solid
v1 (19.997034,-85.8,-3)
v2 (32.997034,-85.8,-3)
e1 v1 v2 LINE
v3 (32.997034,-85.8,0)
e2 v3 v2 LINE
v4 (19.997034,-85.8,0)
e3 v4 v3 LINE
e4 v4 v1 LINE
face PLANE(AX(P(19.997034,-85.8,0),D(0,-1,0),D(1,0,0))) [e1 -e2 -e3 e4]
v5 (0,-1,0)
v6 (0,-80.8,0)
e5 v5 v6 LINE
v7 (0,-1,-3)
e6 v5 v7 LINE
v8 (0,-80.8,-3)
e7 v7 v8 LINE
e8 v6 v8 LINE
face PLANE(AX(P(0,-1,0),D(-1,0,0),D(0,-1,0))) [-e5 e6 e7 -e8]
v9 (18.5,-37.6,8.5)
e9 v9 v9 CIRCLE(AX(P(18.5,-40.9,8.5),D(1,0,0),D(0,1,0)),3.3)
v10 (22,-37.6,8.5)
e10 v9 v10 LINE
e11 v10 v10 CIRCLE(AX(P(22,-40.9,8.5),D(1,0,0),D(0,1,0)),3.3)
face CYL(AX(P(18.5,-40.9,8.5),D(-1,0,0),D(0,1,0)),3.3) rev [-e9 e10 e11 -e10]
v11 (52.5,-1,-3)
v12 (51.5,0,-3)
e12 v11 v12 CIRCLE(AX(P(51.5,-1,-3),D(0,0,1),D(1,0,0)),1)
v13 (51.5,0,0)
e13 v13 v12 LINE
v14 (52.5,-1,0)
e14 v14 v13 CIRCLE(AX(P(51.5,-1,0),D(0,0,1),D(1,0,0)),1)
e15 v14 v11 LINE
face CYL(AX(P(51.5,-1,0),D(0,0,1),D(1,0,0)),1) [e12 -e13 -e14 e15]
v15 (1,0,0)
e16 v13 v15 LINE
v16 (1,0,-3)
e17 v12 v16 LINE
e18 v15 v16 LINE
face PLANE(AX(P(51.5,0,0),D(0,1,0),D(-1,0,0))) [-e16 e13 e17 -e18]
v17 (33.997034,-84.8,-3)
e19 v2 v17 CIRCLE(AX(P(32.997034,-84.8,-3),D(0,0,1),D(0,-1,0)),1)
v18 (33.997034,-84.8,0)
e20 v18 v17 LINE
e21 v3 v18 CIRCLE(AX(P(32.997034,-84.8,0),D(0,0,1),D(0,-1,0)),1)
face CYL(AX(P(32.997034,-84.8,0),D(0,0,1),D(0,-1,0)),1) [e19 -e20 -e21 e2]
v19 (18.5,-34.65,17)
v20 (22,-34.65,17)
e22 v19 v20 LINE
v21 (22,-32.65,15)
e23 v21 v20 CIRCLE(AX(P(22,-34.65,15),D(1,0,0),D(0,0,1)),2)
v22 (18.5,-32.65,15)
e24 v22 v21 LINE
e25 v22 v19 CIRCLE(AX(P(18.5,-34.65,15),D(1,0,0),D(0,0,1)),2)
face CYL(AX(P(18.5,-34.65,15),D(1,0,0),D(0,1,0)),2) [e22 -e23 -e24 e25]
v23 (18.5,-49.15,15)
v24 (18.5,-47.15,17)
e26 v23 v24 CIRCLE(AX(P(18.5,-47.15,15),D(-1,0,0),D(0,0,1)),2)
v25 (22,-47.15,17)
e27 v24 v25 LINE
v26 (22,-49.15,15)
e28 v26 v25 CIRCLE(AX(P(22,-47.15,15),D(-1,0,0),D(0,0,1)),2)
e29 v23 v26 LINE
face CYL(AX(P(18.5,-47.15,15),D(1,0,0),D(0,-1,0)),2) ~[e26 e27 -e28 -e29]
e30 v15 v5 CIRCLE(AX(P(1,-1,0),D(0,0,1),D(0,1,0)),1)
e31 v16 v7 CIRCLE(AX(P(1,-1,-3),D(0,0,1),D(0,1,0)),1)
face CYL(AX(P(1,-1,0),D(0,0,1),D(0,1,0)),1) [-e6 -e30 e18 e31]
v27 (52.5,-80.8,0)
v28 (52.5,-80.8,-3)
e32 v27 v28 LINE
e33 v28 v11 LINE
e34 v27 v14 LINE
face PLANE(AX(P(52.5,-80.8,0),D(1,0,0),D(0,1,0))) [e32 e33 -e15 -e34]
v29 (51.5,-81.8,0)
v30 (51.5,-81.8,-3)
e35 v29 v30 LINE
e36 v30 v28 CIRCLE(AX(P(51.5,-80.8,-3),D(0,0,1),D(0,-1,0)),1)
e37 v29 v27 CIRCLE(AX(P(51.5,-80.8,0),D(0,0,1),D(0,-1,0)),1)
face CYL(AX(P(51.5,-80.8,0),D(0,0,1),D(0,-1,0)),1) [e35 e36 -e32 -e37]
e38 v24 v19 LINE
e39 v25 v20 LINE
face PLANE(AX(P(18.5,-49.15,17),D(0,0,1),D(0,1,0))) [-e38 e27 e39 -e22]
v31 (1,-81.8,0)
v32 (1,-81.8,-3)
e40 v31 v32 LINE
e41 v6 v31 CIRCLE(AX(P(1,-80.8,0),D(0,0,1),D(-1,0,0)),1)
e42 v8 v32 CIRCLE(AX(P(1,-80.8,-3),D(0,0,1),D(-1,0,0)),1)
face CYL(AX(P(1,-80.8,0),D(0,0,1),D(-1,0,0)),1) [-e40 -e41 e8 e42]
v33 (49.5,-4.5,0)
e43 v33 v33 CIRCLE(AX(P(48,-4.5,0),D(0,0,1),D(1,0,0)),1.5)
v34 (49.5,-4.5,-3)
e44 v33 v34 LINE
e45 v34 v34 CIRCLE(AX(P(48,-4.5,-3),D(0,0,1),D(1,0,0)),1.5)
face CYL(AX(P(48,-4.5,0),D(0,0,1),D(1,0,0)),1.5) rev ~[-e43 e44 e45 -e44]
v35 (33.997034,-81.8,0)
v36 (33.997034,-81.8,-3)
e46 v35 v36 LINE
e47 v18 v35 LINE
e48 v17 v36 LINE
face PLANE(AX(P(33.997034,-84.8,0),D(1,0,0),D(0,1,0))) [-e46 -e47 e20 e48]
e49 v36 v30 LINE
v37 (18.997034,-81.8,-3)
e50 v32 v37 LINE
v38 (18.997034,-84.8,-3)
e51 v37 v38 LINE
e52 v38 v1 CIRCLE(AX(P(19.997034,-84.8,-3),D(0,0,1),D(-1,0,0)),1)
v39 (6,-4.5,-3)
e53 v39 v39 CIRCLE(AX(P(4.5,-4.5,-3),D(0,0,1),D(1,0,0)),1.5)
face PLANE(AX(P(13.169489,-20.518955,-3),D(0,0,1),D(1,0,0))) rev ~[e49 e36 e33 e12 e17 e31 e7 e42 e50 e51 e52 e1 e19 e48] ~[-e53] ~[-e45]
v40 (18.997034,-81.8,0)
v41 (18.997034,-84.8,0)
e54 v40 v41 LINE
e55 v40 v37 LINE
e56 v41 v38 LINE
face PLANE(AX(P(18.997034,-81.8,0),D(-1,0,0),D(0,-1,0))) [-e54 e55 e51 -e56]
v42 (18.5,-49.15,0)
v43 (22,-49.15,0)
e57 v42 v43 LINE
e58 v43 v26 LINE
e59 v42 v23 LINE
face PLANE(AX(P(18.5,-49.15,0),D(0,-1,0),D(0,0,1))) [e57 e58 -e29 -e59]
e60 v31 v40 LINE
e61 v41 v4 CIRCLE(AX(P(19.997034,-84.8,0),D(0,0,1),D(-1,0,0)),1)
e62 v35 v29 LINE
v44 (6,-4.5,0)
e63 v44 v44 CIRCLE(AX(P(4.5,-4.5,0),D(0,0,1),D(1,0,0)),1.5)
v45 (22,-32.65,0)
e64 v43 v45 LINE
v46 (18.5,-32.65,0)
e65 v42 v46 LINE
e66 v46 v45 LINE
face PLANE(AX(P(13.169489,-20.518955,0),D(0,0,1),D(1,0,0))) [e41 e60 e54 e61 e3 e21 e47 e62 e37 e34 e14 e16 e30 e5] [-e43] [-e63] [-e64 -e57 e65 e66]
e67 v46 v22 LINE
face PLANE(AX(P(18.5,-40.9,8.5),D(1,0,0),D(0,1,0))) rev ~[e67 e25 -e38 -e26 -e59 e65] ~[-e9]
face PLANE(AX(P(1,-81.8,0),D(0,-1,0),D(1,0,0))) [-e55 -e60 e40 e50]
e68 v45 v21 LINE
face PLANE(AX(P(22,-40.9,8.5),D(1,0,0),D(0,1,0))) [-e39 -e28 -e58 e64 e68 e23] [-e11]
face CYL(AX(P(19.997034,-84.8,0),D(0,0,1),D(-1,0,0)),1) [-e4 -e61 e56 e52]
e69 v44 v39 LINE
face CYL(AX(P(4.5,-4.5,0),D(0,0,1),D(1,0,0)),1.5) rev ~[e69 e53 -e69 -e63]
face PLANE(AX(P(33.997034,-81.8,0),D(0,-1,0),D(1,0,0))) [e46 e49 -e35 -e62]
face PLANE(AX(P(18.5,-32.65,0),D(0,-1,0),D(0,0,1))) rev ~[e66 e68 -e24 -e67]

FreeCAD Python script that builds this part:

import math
import FreeCAD as App
import Part
import Sketcher
Q = App.Units.Quantity


def edges_at(feature, points):
    """Names of the edges that pass closest to the given points."""
    edges = feature.Shape.Edges
    near = lambda p: min(range(len(edges)), key=lambda i: edges[i].distToShape(Part.Vertex(*p))[0])
    return sorted({f"Edge{near(p) + 1}" for p in points})


def add_polygon(sketch, points):
    """Adds a closed chain of lines whose ends are joined by coincident constraints."""
    first, n = sketch.GeometryCount, len(points)
    for a, b in zip(points, points[1:] + points[:1]):
        sketch.addGeometry(Part.LineSegment(App.Vector(*a, 0), App.Vector(*b, 0)), False)
    for i in range(n):
        sketch.addConstraint(Sketcher.Constraint("Coincident", first + i, 2, first + (i + 1) % n, 1))

doc = App.newDocument("Part")
body = doc.addObject("PartDesign::Body", "Body")

# Sketch on XY plane
sketch1 = body.newObject("Sketcher::SketchObject", "Sketch")
sketch1.AttachmentSupport = (doc.getObject("XY_Plane"), [""])
sketch1.MapMode = "FlatFace"
sketch1.addGeometry(Part.ArcOfCircle(Part.Circle(App.Vector(1, -1, 0), App.Vector(0, 0, 1), 1), math.radians(90), math.radians(180)), False)
sketch1.addGeometry(Part.LineSegment(App.Vector(0, -1, 0), App.Vector(0, -80.8, 0)), False)
sketch1.addGeometry(Part.ArcOfCircle(Part.Circle(App.Vector(1, -80.8, 0), App.Vector(0, 0, 1), 1), math.radians(180), math.radians(270)), False)
sketch1.addGeometry(Part.LineSegment(App.Vector(1, -81.8, 0), App.Vector(19, -81.8, 0)), False)
sketch1.addGeometry(Part.LineSegment(App.Vector(19, -81.8, 0), App.Vector(19, -84.8, 0)), False)
sketch1.addGeometry(Part.ArcOfCircle(Part.Circle(App.Vector(20, -84.8, 0), App.Vector(0, 0, 1), 1), math.radians(180), math.radians(270)), False)
sketch1.addGeometry(Part.LineSegment(App.Vector(20, -85.8, 0), App.Vector(33, -85.8, 0)), False)
sketch1.addGeometry(Part.ArcOfCircle(Part.Circle(App.Vector(33, -84.8, 0), App.Vector(0, 0, 1), 1), math.radians(-90), math.radians(0)), False)
sketch1.addGeometry(Part.LineSegment(App.Vector(34, -84.8, 0), App.Vector(34, -81.8, 0)), False)
sketch1.addGeometry(Part.LineSegment(App.Vector(34, -81.8, 0), App.Vector(51.5, -81.8, 0)), False)
sketch1.addGeometry(Part.ArcOfCircle(Part.Circle(App.Vector(51.5, -80.8, 0), App.Vector(0, 0, 1), 1), math.radians(-90), math.radians(0)), False)
sketch1.addGeometry(Part.LineSegment(App.Vector(52.5, -80.8, 0), App.Vector(52.5, -1, 0)), False)
sketch1.addGeometry(Part.ArcOfCircle(Part.Circle(App.Vector(51.5, -1, 0), App.Vector(0, 0, 1), 1), math.radians(0), math.radians(90)), False)
sketch1.addGeometry(Part.LineSegment(App.Vector(51.5, 0, 0), App.Vector(1, 0, 0)), False)
sketch1.addGeometry(Part.Circle(App.Vector(4.5, -4.5, 0), App.Vector(0, 0, 1), 1.5), False)
sketch1.addGeometry(Part.Circle(App.Vector(48, -4.5, 0), App.Vector(0, 0, 1), 1.5), False)
sketch1.addConstraint(Sketcher.Constraint("Tangent", 0, 2, 1, 1))
sketch1.addConstraint(Sketcher.Constraint("Tangent", 1, 2, 2, 1))
sketch1.addConstraint(Sketcher.Constraint("Tangent", 2, 2, 3, 1))
sketch1.addConstraint(Sketcher.Constraint("Coincident", 3, 2, 4, 1))
sketch1.addConstraint(Sketcher.Constraint("Tangent", 4, 2, 5, 1))
sketch1.addConstraint(Sketcher.Constraint("Tangent", 5, 2, 6, 1))
sketch1.addConstraint(Sketcher.Constraint("Tangent", 6, 2, 7, 1))
sketch1.addConstraint(Sketcher.Constraint("Tangent", 7, 2, 8, 1))
sketch1.addConstraint(Sketcher.Constraint("Coincident", 8, 2, 9, 1))
sketch1.addConstraint(Sketcher.Constraint("Tangent", 9, 2, 10, 1))
sketch1.addConstraint(Sketcher.Constraint("Tangent", 10, 2, 11, 1))
sketch1.addConstraint(Sketcher.Constraint("Tangent", 11, 2, 12, 1))
sketch1.addConstraint(Sketcher.Constraint("Tangent", 12, 2, 13, 1))
sketch1.addConstraint(Sketcher.Constraint("Tangent", 13, 2, 0, 1))
sketch1.addConstraint(Sketcher.Constraint("Vertical", 1))
sketch1.addConstraint(Sketcher.Constraint("Horizontal", 3))
sketch1.addConstraint(Sketcher.Constraint("Vertical", 4))
sketch1.addConstraint(Sketcher.Constraint("Horizontal", 6))
sketch1.addConstraint(Sketcher.Constraint("Vertical", 8))
sketch1.addConstraint(Sketcher.Constraint("Horizontal", 9))
sketch1.addConstraint(Sketcher.Constraint("Vertical", 11))
sketch1.addConstraint(Sketcher.Constraint("Horizontal", 13))
sketch1.addConstraint(Sketcher.Constraint("Equal", 0, 2))
sketch1.addConstraint(Sketcher.Constraint("Equal", 2, 5))
sketch1.addConstraint(Sketcher.Constraint("Equal", 5, 7))
sketch1.addConstraint(Sketcher.Constraint("Equal", 7, 10))
sketch1.addConstraint(Sketcher.Constraint("Equal", 10, 12))
sketch1.addConstraint(Sketcher.Constraint("Equal", 14, 15))
sketch1.addConstraint(Sketcher.Constraint("PointOnObject", 0, 2, -2))
sketch1.addConstraint(Sketcher.Constraint("PointOnObject", 12, 2, -1))
sketch1.addConstraint(Sketcher.Constraint("Horizontal", 2, 3, 10, 3))
sketch1.addConstraint(Sketcher.Constraint("Horizontal", 14, 3, 15, 3))
sketch1.addConstraint(Sketcher.Constraint("Diameter", 14, Q("3 mm")))
sketch1.addConstraint(Sketcher.Constraint("Radius", 0, Q("1 mm")))
sketch1.addConstraint(Sketcher.Constraint("DistanceX", 6, 1, 6, 2, Q("13 mm")))
sketch1.addConstraint(Sketcher.Constraint("DistanceY", 4, 2, 4, 1, Q("3 mm")))
sketch1.addConstraint(Sketcher.Constraint("DistanceX", 13, 2, 13, 1, Q("50.5 mm")))
sketch1.addConstraint(Sketcher.Constraint("DistanceY", 1, 2, 1, 1, Q("79.8 mm")))
sketch1.addConstraint(Sketcher.Constraint("DistanceX", -1, 1, 15, 3, Q("48 mm")))
sketch1.addConstraint(Sketcher.Constraint("DistanceX", 14, 3, 12, 3, Q("47 mm")))
sketch1.addConstraint(Sketcher.Constraint("DistanceY", 14, 3, -1, 1, Q("4.5 mm")))
sketch1.addConstraint(Sketcher.Constraint("DistanceX", 3, 1, 3, 2, Q("17.997034 mm")))
pad1 = body.newObject("PartDesign::Pad", "Pad")
pad1.Profile = sketch1
pad1.Length = 3
pad1.Reversed = True

# Sketch on YZ plane
sketch2 = body.newObject("Sketcher::SketchObject", "Sketch001")
sketch2.AttachmentSupport = (doc.getObject("YZ_Plane"), [""])
sketch2.MapMode = "FlatFace"
sketch2.AttachmentOffset = App.Placement(App.Vector(0, 0, 18.5), App.Rotation())
add_polygon(sketch2, [(-49.1, 17), (-49.1, 0), (-32.6, 0), (-32.6, 17)])  # lines 0-3
sketch2.addGeometry(Part.Circle(App.Vector(-40.9, 8.5, 0), App.Vector(0, 0, 1), 3.3), False)  # 4
sketch2.addConstraint(Sketcher.Constraint("Vertical", 0))
sketch2.addConstraint(Sketcher.Constraint("Horizontal", 1))
sketch2.addConstraint(Sketcher.Constraint("Vertical", 2))
sketch2.addConstraint(Sketcher.Constraint("Horizontal", 3))
sketch2.addConstraint(Sketcher.Constraint("PointOnObject", 0, 2, -1))
sketch2.addConstraint(Sketcher.Constraint("Diameter", 4, Q("6.6 mm")))
sketch2.addConstraint(Sketcher.Constraint("DistanceY", 0, 2, 0, 1, Q("17 mm")))
sketch2.addConstraint(Sketcher.Constraint("DistanceX", 1, 1, 1, 2, Q("16.5 mm")))
sketch2.addConstraint(Sketcher.Constraint("DistanceX", 4, 3, -1, 1, Q("40.9 mm")))
sketch2.addConstraint(Sketcher.Constraint("DistanceY", -1, 1, 4, 3, Q("8.5 mm")))
sketch2.addConstraint(Sketcher.Constraint("DistanceX", 0, 2, -1, 1, Q("49.15 mm")))
pad2 = body.newObject("PartDesign::Pad", "Pad001")
pad2.Profile = sketch2
pad2.Length = 3.5
doc.recompute()

fillet = body.newObject("PartDesign::Fillet", "Fillet")
fillet.Base = (pad2, edges_at(pad2, [(20.25, -49.15, 17), (20.25, -32.65, 17)]))
fillet.Radius = 2

doc.recompute()
